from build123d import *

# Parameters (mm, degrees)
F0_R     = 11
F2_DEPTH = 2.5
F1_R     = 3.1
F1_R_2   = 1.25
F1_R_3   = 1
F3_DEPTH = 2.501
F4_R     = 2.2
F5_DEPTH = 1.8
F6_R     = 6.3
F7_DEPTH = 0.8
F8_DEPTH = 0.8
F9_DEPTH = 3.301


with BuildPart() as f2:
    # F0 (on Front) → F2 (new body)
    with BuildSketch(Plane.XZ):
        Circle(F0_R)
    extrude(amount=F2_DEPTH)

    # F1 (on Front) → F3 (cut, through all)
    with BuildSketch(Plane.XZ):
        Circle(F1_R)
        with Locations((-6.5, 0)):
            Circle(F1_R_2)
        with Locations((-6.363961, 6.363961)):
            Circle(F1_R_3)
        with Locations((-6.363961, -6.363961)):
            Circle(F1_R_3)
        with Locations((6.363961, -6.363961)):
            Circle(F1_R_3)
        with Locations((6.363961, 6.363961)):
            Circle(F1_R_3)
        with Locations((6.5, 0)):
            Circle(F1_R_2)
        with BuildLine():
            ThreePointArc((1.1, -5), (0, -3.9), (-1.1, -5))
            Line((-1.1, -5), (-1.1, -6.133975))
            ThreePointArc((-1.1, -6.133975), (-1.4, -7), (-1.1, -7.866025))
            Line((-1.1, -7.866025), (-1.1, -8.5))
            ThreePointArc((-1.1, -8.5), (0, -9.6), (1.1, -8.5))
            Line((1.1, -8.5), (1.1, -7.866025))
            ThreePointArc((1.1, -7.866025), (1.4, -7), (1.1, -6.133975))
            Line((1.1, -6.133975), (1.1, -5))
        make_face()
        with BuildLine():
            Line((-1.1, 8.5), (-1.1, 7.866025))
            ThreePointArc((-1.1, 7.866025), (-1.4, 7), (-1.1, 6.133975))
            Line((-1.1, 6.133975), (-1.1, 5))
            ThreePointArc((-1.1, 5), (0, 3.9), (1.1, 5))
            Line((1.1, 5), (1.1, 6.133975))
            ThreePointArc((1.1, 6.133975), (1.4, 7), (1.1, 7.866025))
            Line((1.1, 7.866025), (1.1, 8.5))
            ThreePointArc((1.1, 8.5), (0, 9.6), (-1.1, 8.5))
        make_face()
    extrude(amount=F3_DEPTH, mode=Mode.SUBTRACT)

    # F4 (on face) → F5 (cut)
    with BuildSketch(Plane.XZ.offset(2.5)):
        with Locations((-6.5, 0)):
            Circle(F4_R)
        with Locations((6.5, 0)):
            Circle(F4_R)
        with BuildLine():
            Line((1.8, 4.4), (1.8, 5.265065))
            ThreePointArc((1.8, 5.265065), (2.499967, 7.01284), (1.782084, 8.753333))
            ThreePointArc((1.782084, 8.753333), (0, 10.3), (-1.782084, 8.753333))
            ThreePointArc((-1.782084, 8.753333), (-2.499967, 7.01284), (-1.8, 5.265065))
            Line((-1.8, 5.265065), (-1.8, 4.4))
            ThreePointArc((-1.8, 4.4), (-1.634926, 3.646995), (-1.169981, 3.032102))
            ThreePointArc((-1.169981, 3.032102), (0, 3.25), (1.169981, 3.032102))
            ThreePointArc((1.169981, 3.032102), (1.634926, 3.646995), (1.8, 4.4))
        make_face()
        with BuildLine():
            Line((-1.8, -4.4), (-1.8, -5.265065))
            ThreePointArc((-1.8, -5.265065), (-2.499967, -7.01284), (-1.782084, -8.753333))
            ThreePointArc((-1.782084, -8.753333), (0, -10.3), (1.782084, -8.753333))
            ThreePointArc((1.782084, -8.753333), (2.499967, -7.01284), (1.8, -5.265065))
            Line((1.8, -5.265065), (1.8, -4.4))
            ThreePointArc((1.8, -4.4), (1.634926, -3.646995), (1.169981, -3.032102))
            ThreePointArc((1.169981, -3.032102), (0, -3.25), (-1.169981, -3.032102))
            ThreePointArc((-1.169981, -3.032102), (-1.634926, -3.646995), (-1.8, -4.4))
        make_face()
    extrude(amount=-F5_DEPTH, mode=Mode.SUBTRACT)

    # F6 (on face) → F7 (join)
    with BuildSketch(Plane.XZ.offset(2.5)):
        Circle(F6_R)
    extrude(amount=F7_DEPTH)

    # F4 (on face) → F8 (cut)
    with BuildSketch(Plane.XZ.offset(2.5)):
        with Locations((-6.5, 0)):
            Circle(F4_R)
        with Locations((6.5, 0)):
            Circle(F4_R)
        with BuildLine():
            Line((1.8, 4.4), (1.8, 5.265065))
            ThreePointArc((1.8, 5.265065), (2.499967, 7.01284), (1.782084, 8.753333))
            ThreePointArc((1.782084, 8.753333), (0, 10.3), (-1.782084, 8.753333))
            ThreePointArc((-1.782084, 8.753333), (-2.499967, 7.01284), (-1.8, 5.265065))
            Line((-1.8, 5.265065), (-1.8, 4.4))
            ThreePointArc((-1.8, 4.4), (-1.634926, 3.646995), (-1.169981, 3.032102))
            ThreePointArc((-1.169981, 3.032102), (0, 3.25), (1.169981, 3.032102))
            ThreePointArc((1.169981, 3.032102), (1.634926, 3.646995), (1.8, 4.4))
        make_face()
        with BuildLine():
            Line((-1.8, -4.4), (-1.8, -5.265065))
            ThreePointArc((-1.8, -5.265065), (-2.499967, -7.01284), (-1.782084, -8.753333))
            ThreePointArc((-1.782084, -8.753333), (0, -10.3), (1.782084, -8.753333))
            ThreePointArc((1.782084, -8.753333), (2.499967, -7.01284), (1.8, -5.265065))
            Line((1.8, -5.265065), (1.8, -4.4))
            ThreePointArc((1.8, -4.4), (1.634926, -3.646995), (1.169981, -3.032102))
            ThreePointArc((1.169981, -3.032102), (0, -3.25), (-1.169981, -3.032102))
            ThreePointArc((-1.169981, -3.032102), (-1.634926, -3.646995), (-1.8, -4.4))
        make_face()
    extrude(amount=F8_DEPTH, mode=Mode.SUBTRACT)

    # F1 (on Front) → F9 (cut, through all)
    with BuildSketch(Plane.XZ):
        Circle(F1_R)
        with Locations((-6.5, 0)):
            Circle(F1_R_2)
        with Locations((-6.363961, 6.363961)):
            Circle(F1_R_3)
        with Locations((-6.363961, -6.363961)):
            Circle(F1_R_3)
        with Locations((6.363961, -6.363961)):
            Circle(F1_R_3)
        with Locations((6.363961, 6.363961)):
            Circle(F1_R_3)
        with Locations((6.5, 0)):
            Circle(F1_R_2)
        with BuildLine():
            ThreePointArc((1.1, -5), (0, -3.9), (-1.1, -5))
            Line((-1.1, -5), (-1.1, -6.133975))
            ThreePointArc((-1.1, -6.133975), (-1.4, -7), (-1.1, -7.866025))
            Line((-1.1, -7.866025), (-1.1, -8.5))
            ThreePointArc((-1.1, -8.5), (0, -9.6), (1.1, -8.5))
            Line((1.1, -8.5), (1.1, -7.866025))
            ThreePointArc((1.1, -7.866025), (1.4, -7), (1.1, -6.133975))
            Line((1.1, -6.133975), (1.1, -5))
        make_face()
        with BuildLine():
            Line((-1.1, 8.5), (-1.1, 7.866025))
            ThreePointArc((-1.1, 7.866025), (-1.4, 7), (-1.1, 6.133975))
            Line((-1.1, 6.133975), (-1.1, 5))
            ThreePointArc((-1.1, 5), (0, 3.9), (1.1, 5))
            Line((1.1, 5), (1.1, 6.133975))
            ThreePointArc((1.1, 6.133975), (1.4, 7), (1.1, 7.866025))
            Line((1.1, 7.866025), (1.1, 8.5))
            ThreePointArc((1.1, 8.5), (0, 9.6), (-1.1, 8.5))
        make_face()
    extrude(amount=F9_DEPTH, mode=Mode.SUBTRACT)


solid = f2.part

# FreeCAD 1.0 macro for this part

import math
import FreeCAD as App
import Part
import Sketcher

V = App.Vector

doc = App.newDocument("Part")
body = doc.addObject("PartDesign::Body", "Body")

sketch1 = body.newObject("Sketcher::SketchObject", "Sketch")
sketch1.AttachmentSupport = (doc.getObject("XZ_Plane"), [""])
sketch1.MapMode = "FlatFace"
sketch1.addGeometry(Part.Circle(V(0, 0, 0), V(0, 0, 1), 11), False)
sketch1.addConstraint(Sketcher.Constraint("Coincident", 0, 3, -1, 1))
sketch1.addConstraint(Sketcher.Constraint("Diameter", 0, 22.0))
pad1 = body.newObject("PartDesign::Pad", "Pad")
pad1.Profile = sketch1
pad1.Length = 2.5

sketch2 = body.newObject("Sketcher::SketchObject", "Sketch001")
sketch2.AttachmentSupport = (doc.getObject("XZ_Plane"), [""])
sketch2.MapMode = "FlatFace"
sketch2.addGeometry(Part.Circle(V(0, 0, 0), V(0, 0, 1), 3.1), False)
sketch2.addGeometry(Part.Circle(V(-6.5, 0, 0), V(0, 0, 1), 1.2), False)
sketch2.addGeometry(Part.Circle(V(-6.4, 6.4, 0), V(0, 0, 1), 1), False)
sketch2.addGeometry(Part.Circle(V(-6.4, -6.4, 0), V(0, 0, 1), 1), False)
sketch2.addGeometry(Part.Circle(V(6.4, -6.4, 0), V(0, 0, 1), 1), False)
sketch2.addGeometry(Part.Circle(V(6.4, 6.4, 0), V(0, 0, 1), 1), False)
sketch2.addGeometry(Part.Circle(V(6.5, 0, 0), V(0, 0, 1), 1.2), False)
sketch2.addGeometry(Part.ArcOfCircle(Part.Circle(V(0, -5, 0), V(0, 0, 1), 1.1), math.radians(0), math.radians(180)), False)
sketch2.addGeometry(Part.LineSegment(V(-1.1, -5, 0), V(-1.1, -6.1, 0)), False)
sketch2.addGeometry(Part.ArcOfCircle(Part.Circle(V(0, -7, 0), V(0, 0, 1), 1.4), math.radians(142), math.radians(218)), False)
sketch2.addGeometry(Part.LineSegment(V(-1.1, -7.9, 0), V(-1.1, -8.5, 0)), False)
sketch2.addGeometry(Part.ArcOfCircle(Part.Circle(V(0, -8.5, 0), V(0, 0, 1), 1.1), math.radians(180), math.radians(360)), False)
sketch2.addGeometry(Part.LineSegment(V(1.1, -8.5, 0), V(1.1, -7.9, 0)), False)
sketch2.addGeometry(Part.ArcOfCircle(Part.Circle(V(0, -7, 0), V(0, 0, 1), 1.4), math.radians(-38), math.radians(38)), False)
sketch2.addGeometry(Part.LineSegment(V(1.1, -6.1, 0), V(1.1, -5, 0)), False)
sketch2.addGeometry(Part.LineSegment(V(-1.1, 8.5, 0), V(-1.1, 7.9, 0)), False)
sketch2.addGeometry(Part.ArcOfCircle(Part.Circle(V(0, 7, 0), V(0, 0, 1), 1.4), math.radians(142), math.radians(218)), False)
sketch2.addGeometry(Part.LineSegment(V(-1.1, 6.1, 0), V(-1.1, 5, 0)), False)
sketch2.addGeometry(Part.ArcOfCircle(Part.Circle(V(0, 5, 0), V(0, 0, 1), 1.1), math.radians(180), math.radians(360)), False)
sketch2.addGeometry(Part.LineSegment(V(1.1, 5, 0), V(1.1, 6.1, 0)), False)
sketch2.addGeometry(Part.ArcOfCircle(Part.Circle(V(0, 7, 0), V(0, 0, 1), 1.4), math.radians(-38), math.radians(38)), False)
sketch2.addGeometry(Part.LineSegment(V(1.1, 7.9, 0), V(1.1, 8.5, 0)), False)
sketch2.addGeometry(Part.ArcOfCircle(Part.Circle(V(0, 8.5, 0), V(0, 0, 1), 1.1), math.radians(0), math.radians(180)), False)
sketch2.addConstraint(Sketcher.Constraint("Tangent", 7, 2, 8, 1))
sketch2.addConstraint(Sketcher.Constraint("Coincident", 8, 2, 9, 1))
sketch2.addConstraint(Sketcher.Constraint("Coincident", 9, 2, 10, 1))
sketch2.addConstraint(Sketcher.Constraint("Tangent", 10, 2, 11, 1))
sketch2.addConstraint(Sketcher.Constraint("Tangent", 11, 2, 12, 1))
sketch2.addConstraint(Sketcher.Constraint("Coincident", 12, 2, 13, 1))
sketch2.addConstraint(Sketcher.Constraint("Coincident", 13, 2, 14, 1))
sketch2.addConstraint(Sketcher.Constraint("Tangent", 14, 2, 7, 1))
sketch2.addConstraint(Sketcher.Constraint("Coincident", 15, 2, 16, 1))
sketch2.addConstraint(Sketcher.Constraint("Coincident", 16, 2, 17, 1))
sketch2.addConstraint(Sketcher.Constraint("Tangent", 17, 2, 18, 1))
sketch2.addConstraint(Sketcher.Constraint("Tangent", 18, 2, 19, 1))
sketch2.addConstraint(Sketcher.Constraint("Coincident", 19, 2, 20, 1))
sketch2.addConstraint(Sketcher.Constraint("Coincident", 20, 2, 21, 1))
sketch2.addConstraint(Sketcher.Constraint("Tangent", 21, 2, 22, 1))
sketch2.addConstraint(Sketcher.Constraint("Tangent", 22, 2, 15, 1))
sketch2.addConstraint(Sketcher.Constraint("Vertical", 8))
sketch2.addConstraint(Sketcher.Constraint("Vertical", 10))
sketch2.addConstraint(Sketcher.Constraint("Vertical", 12))
sketch2.addConstraint(Sketcher.Constraint("Vertical", 14))
sketch2.addConstraint(Sketcher.Constraint("Vertical", 15))
sketch2.addConstraint(Sketcher.Constraint("Vertical", 17))
sketch2.addConstraint(Sketcher.Constraint("Vertical", 19))
sketch2.addConstraint(Sketcher.Constraint("Vertical", 21))
sketch2.addConstraint(Sketcher.Constraint("Coincident", 0, 3, -1, 1))
sketch2.addConstraint(Sketcher.Constraint("Coincident", 13, 3, 9, 3))
sketch2.addConstraint(Sketcher.Constraint("Coincident", 20, 3, 16, 3))
sketch2.addConstraint(Sketcher.Constraint("Equal", 2, 3))
sketch2.addConstraint(Sketcher.Constraint("Equal", 3, 4))
sketch2.addConstraint(Sketcher.Constraint("Equal", 4, 5))
sketch2.addConstraint(Sketcher.Constraint("Equal", 1, 6))
sketch2.addConstraint(Sketcher.Constraint("Equal", 7, 11))
sketch2.addConstraint(Sketcher.Constraint("Equal", 9, 13))
sketch2.addConstraint(Sketcher.Constraint("Equal", 13, 16))
sketch2.addConstraint(Sketcher.Constraint("Equal", 11, 18))
sketch2.addConstraint(Sketcher.Constraint("Equal", 16, 20))
sketch2.addConstraint(Sketcher.Constraint("Equal", 18, 22))
sketch2.addConstraint(Sketcher.Constraint("Symmetric", 2, 3, 4, 3, -1, 1))
sketch2.addConstraint(Sketcher.Constraint("Symmetric", 3, 3, 5, 3, -1, 1))
sketch2.addConstraint(Sketcher.Constraint("Symmetric", 1, 3, 6, 3, -1, 1))
sketch2.addConstraint(Sketcher.Constraint("Symmetric", 9, 3, 16, 3, -1, 1))
sketch2.addConstraint(Sketcher.Constraint("Symmetric", 7, 3, 18, 3, -1, 1))
sketch2.addConstraint(Sketcher.Constraint("Symmetric", 11, 3, 22, 3, -1, 1))
sketch2.addConstraint(Sketcher.Constraint("Symmetric", 3, 3, 4, 3, -2))
sketch2.addConstraint(Sketcher.Constraint("Symmetric", 9, 2, 12, 2, -2))
sketch2.addConstraint(Sketcher.Constraint("PointOnObject", 1, 3, -1))
sketch2.addConstraint(Sketcher.Constraint("PointOnObject", 7, 3, -2))
sketch2.addConstraint(Sketcher.Constraint("Diameter", 2, 2.0))
sketch2.addConstraint(Sketcher.Constraint("Diameter", 0, 6.2))
sketch2.addConstraint(Sketcher.Constraint("Diameter", 1, 2.5))
sketch2.addConstraint(Sketcher.Constraint("Radius", 7, 1.1))
sketch2.addConstraint(Sketcher.Constraint("Radius", 9, 1.399999))
sketch2.addConstraint(Sketcher.Constraint("DistanceY", 7, 3, -1, 1, 5.0))
sketch2.addConstraint(Sketcher.Constraint("DistanceY", 9, 3, -1, 1, 7.0))
sketch2.addConstraint(Sketcher.Constraint("DistanceX", 1, 3, 6, 3, 13.0))
sketch2.addConstraint(Sketcher.Constraint("DistanceY", 11, 3, -1, 1, 8.5))
sketch2.addConstraint(Sketcher.Constraint("DistanceX", 2, 3, -1, 1, 6.363961))
sketch2.addConstraint(Sketcher.Constraint("DistanceY", -1, 1, 2, 3, 6.363961))
pocket1 = body.newObject("PartDesign::Pocket", "Pocket")
pocket1.Profile = sketch2
pocket1.Type = "ThroughAll"
pocket1.Reversed = True

sketch3 = body.newObject("Sketcher::SketchObject", "Sketch002")
sketch3.AttachmentSupport = (doc.getObject("XZ_Plane"), [""])
sketch3.MapMode = "FlatFace"
sketch3.AttachmentOffset = App.Placement(V(0, 0, 2.5), App.Rotation())
sketch3.addGeometry(Part.Circle(V(-6.5, 0, 0), V(0, 0, 1), 2.2), False)
sketch3.addGeometry(Part.Circle(V(6.5, 0, 0), V(0, 0, 1), 2.2), False)
sketch3.addGeometry(Part.LineSegment(V(1.8, 4.4, 0), V(1.8, 5.3, 0)), False)
sketch3.addGeometry(Part.ArcOfCircle(Part.Circle(V(0, 7, 0), V(0, 0, 1), 2.5), math.radians(-44), math.radians(45)), False)
sketch3.addGeometry(Part.ArcOfCircle(Part.Circle(V(0, 8.5, 0), V(0, 0, 1), 1.8), math.radians(8), math.radians(172)), False)
sketch3.addGeometry(Part.ArcOfCircle(Part.Circle(V(0, 7, 0), V(0, 0, 1), 2.5), math.radians(135), math.radians(224)), False)
sketch3.addGeometry(Part.LineSegment(V(-1.8, 5.3, 0), V(-1.8, 4.4, 0)), False)
sketch3.addGeometry(Part.ArcOfCircle(Part.Circle(V(0, 4.4, 0), V(0, 0, 1), 1.8), math.radians(-180), math.radians(-131)), False)
sketch3.addGeometry(Part.ArcOfCircle(Part.Circle(V(0, 0, 0), V(0, 0, 1), 3.2), math.radians(69), math.radians(111)), False)
sketch3.addGeometry(Part.ArcOfCircle(Part.Circle(V(0, 4.4, 0), V(0, 0, 1), 1.8), math.radians(-49), math.radians(0)), False)
sketch3.addGeometry(Part.LineSegment(V(-1.8, -4.4, 0), V(-1.8, -5.3, 0)), False)
sketch3.addGeometry(Part.ArcOfCircle(Part.Circle(V(0, -7, 0), V(0, 0, 1), 2.5), math.radians(136), math.radians(225)), False)
sketch3.addGeometry(Part.ArcOfCircle(Part.Circle(V(0, -8.5, 0), V(0, 0, 1), 1.8), math.radians(-172), math.radians(-8)), False)
sketch3.addGeometry(Part.ArcOfCircle(Part.Circle(V(0, -7, 0), V(0, 0, 1), 2.5), math.radians(-45), math.radians(44)), False)
sketch3.addGeometry(Part.LineSegment(V(1.8, -5.3, 0), V(1.8, -4.4, 0)), False)
sketch3.addGeometry(Part.ArcOfCircle(Part.Circle(V(0, -4.4, 0), V(0, 0, 1), 1.8), math.radians(0), math.radians(49)), False)
sketch3.addGeometry(Part.ArcOfCircle(Part.Circle(V(0, 0, 0), V(0, 0, 1), 3.2), math.radians(-111), math.radians(-69)), False)
sketch3.addGeometry(Part.ArcOfCircle(Part.Circle(V(0, -4.4, 0), V(0, 0, 1), 1.8), math.radians(131), math.radians(180)), False)
sketch3.addConstraint(Sketcher.Constraint("Coincident", 2, 2, 3, 1))
sketch3.addConstraint(Sketcher.Constraint("Coincident", 3, 2, 4, 1))
sketch3.addConstraint(Sketcher.Constraint("Coincident", 4, 2, 5, 1))
sketch3.addConstraint(Sketcher.Constraint("Coincident", 5, 2, 6, 1))
sketch3.addConstraint(Sketcher.Constraint("Tangent", 6, 2, 7, 1))
sketch3.addConstraint(Sketcher.Constraint("Coincident", 7, 2, 8, 2))
sketch3.addConstraint(Sketcher.Constraint("Coincident", 8, 1, 9, 1))
sketch3.addConstraint(Sketcher.Constraint("Tangent", 9, 2, 2, 1))
sketch3.addConstraint(Sketcher.Constraint("Coincident", 10, 2, 11, 1))
sketch3.addConstraint(Sketcher.Constraint("Coincident", 11, 2, 12, 1))
sketch3.addConstraint(Sketcher.Constraint("Coincident", 12, 2, 13, 1))
sketch3.addConstraint(Sketcher.Constraint("Coincident", 13, 2, 14, 1))
sketch3.addConstraint(Sketcher.Constraint("Tangent", 14, 2, 15, 1))
sketch3.addConstraint(Sketcher.Constraint("Coincident", 15, 2, 16, 2))
sketch3.addConstraint(Sketcher.Constraint("Coincident", 16, 1, 17, 1))
sketch3.addConstraint(Sketcher.Constraint("Tangent", 17, 2, 10, 1))
sketch3.addConstraint(Sketcher.Constraint("Vertical", 2))
sketch3.addConstraint(Sketcher.Constraint("Vertical", 6))
sketch3.addConstraint(Sketcher.Constraint("Vertical", 10))
sketch3.addConstraint(Sketcher.Constraint("Vertical", 14))
sketch3.addConstraint(Sketcher.Constraint("Coincident", 8, 3, -1, 1))
sketch3.addConstraint(Sketcher.Constraint("Coincident", 16, 3, -1, 1))
sketch3.addConstraint(Sketcher.Constraint("Coincident", 5, 3, 3, 3))
sketch3.addConstraint(Sketcher.Constraint("Coincident", 9, 3, 7, 3))
sketch3.addConstraint(Sketcher.Constraint("Coincident", 13, 3, 11, 3))
sketch3.addConstraint(Sketcher.Constraint("Coincident", 17, 3, 15, 3))
sketch3.addConstraint(Sketcher.Constraint("Equal", 0, 1))
sketch3.addConstraint(Sketcher.Constraint("Equal", 3, 5))
sketch3.addConstraint(Sketcher.Constraint("Equal", 4, 7))
sketch3.addConstraint(Sketcher.Constraint("Equal", 7, 9))
sketch3.addConstraint(Sketcher.Constraint("Equal", 5, 11))
sketch3.addConstraint(Sketcher.Constraint("Equal", 9, 12))
sketch3.addConstraint(Sketcher.Constraint("Equal", 11, 13))
sketch3.addConstraint(Sketcher.Constraint("Equal", 12, 15))
sketch3.addConstraint(Sketcher.Constraint("Equal", 8, 16))
sketch3.addConstraint(Sketcher.Constraint("Equal", 15, 17))
sketch3.addConstraint(Sketcher.Constraint("Symmetric", 0, 3, 1, 3, -1, 1))
sketch3.addConstraint(Sketcher.Constraint("Symmetric", 3, 3, 11, 3, -1, 1))
sketch3.addConstraint(Sketcher.Constraint("Symmetric", 4, 3, 12, 3, -1, 1))
sketch3.addConstraint(Sketcher.Constraint("Symmetric", 7, 3, 15, 3, -1, 1))
sketch3.addConstraint(Sketcher.Constraint("Symmetric", 3, 2, 4, 2, -2))
sketch3.addConstraint(Sketcher.Constraint("PointOnObject", 0, 3, -1))
sketch3.addConstraint(Sketcher.Constraint("PointOnObject", 7, 3, -2))
sketch3.addConstraint(Sketcher.Constraint("Diameter", 0, 4.4))
sketch3.addConstraint(Sketcher.Constraint("Radius", 3, 2.5))
sketch3.addConstraint(Sketcher.Constraint("Radius", 4, 1.8))
sketch3.addConstraint(Sketcher.Constraint("DistanceY", -1, 1, 3, 3, 7.0))
sketch3.addConstraint(Sketcher.Constraint("DistanceX", 0, 3, 1, 3, 13.0))
sketch3.addConstraint(Sketcher.Constraint("DistanceY", -1, 1, 4, 3, 8.5))
sketch3.addConstraint(Sketcher.Constraint("DistanceY", -1, 1, 7, 3, 4.400001))
sketch3.addConstraint(Sketcher.Constraint("Radius", 8, 3.249996))
pocket2 = body.newObject("PartDesign::Pocket", "Pocket001")
pocket2.Profile = sketch3
pocket2.Length = 1.8

sketch4 = body.newObject("Sketcher::SketchObject", "Sketch003")
sketch4.AttachmentSupport = (doc.getObject("XZ_Plane"), [""])
sketch4.MapMode = "FlatFace"
sketch4.AttachmentOffset = App.Placement(V(0, 0, 2.5), App.Rotation())
sketch4.addGeometry(Part.Circle(V(0, 0, 0), V(0, 0, 1), 6), False)
sketch4.addConstraint(Sketcher.Constraint("Coincident", 0, 3, -1, 1))
sketch4.addConstraint(Sketcher.Constraint("Diameter", 0, 12.6))
pad2 = body.newObject("PartDesign::Pad", "Pad001")
pad2.Profile = sketch4
pad2.Length = 0.8

sketch5 = body.newObject("Sketcher::SketchObject", "Sketch004")
sketch5.AttachmentSupport = (doc.getObject("XZ_Plane"), [""])
sketch5.MapMode = "FlatFace"
sketch5.AttachmentOffset = App.Placement(V(0, 0, 2.5), App.Rotation())
sketch5.addGeometry(Part.Circle(V(-6.5, 0, 0), V(0, 0, 1), 2.2), False)
sketch5.addGeometry(Part.Circle(V(6.5, 0, 0), V(0, 0, 1), 2.2), False)
sketch5.addGeometry(Part.LineSegment(V(1.8, 4.4, 0), V(1.8, 5.3, 0)), False)
sketch5.addGeometry(Part.ArcOfCircle(Part.Circle(V(0, 7, 0), V(0, 0, 1), 2.5), math.radians(-44), math.radians(45)), False)
sketch5.addGeometry(Part.ArcOfCircle(Part.Circle(V(0, 8.5, 0), V(0, 0, 1), 1.8), math.radians(8), math.radians(172)), False)
sketch5.addGeometry(Part.ArcOfCircle(Part.Circle(V(0, 7, 0), V(0, 0, 1), 2.5), math.radians(135), math.radians(224)), False)
sketch5.addGeometry(Part.LineSegment(V(-1.8, 5.3, 0), V(-1.8, 4.4, 0)), False)
sketch5.addGeometry(Part.ArcOfCircle(Part.Circle(V(0, 4.4, 0), V(0, 0, 1), 1.8), math.radians(-180), math.radians(-131)), False)
sketch5.addGeometry(Part.ArcOfCircle(Part.Circle(V(0, 0, 0), V(0, 0, 1), 3.2), math.radians(69), math.radians(111)), False)
sketch5.addGeometry(Part.ArcOfCircle(Part.Circle(V(0, 4.4, 0), V(0, 0, 1), 1.8), math.radians(-49), math.radians(0)), False)
sketch5.addGeometry(Part.LineSegment(V(-1.8, -4.4, 0), V(-1.8, -5.3, 0)), False)
sketch5.addGeometry(Part.ArcOfCircle(Part.Circle(V(0, -7, 0), V(0, 0, 1), 2.5), math.radians(136), math.radians(225)), False)
sketch5.addGeometry(Part.ArcOfCircle(Part.Circle(V(0, -8.5, 0), V(0, 0, 1), 1.8), math.radians(-172), math.radians(-8)), False)
sketch5.addGeometry(Part.ArcOfCircle(Part.Circle(V(0, -7, 0), V(0, 0, 1), 2.5), math.radians(-45), math.radians(44)), False)
sketch5.addGeometry(Part.LineSegment(V(1.8, -5.3, 0), V(1.8, -4.4, 0)), False)
sketch5.addGeometry(Part.ArcOfCircle(Part.Circle(V(0, -4.4, 0), V(0, 0, 1), 1.8), math.radians(0), math.radians(49)), False)
sketch5.addGeometry(Part.ArcOfCircle(Part.Circle(V(0, 0, 0), V(0, 0, 1), 3.2), math.radians(-111), math.radians(-69)), False)
sketch5.addGeometry(Part.ArcOfCircle(Part.Circle(V(0, -4.4, 0), V(0, 0, 1), 1.8), math.radians(131), math.radians(180)), False)
sketch5.addConstraint(Sketcher.Constraint("Coincident", 2, 2, 3, 1))
sketch5.addConstraint(Sketcher.Constraint("Coincident", 3, 2, 4, 1))
sketch5.addConstraint(Sketcher.Constraint("Coincident", 4, 2, 5, 1))
sketch5.addConstraint(Sketcher.Constraint("Coincident", 5, 2, 6, 1))
sketch5.addConstraint(Sketcher.Constraint("Tangent", 6, 2, 7, 1))
sketch5.addConstraint(Sketcher.Constraint("Coincident", 7, 2, 8, 2))
sketch5.addConstraint(Sketcher.Constraint("Coincident", 8, 1, 9, 1))
sketch5.addConstraint(Sketcher.Constraint("Tangent", 9, 2, 2, 1))
sketch5.addConstraint(Sketcher.Constraint("Coincident", 10, 2, 11, 1))
sketch5.addConstraint(Sketcher.Constraint("Coincident", 11, 2, 12, 1))
sketch5.addConstraint(Sketcher.Constraint("Coincident", 12, 2, 13, 1))
sketch5.addConstraint(Sketcher.Constraint("Coincident", 13, 2, 14, 1))
sketch5.addConstraint(Sketcher.Constraint("Tangent", 14, 2, 15, 1))
sketch5.addConstraint(Sketcher.Constraint("Coincident", 15, 2, 16, 2))
sketch5.addConstraint(Sketcher.Constraint("Coincident", 16, 1, 17, 1))
sketch5.addConstraint(Sketcher.Constraint("Tangent", 17, 2, 10, 1))
sketch5.addConstraint(Sketcher.Constraint("Vertical", 2))
sketch5.addConstraint(Sketcher.Constraint("Vertical", 6))
sketch5.addConstraint(Sketcher.Constraint("Vertical", 10))
sketch5.addConstraint(Sketcher.Constraint("Vertical", 14))
sketch5.addConstraint(Sketcher.Constraint("Coincident", 8, 3, -1, 1))
sketch5.addConstraint(Sketcher.Constraint("Coincident", 16, 3, -1, 1))
sketch5.addConstraint(Sketcher.Constraint("Coincident", 5, 3, 3, 3))
sketch5.addConstraint(Sketcher.Constraint("Coincident", 9, 3, 7, 3))
sketch5.addConstraint(Sketcher.Constraint("Coincident", 13, 3, 11, 3))
sketch5.addConstraint(Sketcher.Constraint("Coincident", 17, 3, 15, 3))
sketch5.addConstraint(Sketcher.Constraint("Equal", 0, 1))
sketch5.addConstraint(Sketcher.Constraint("Equal", 3, 5))
sketch5.addConstraint(Sketcher.Constraint("Equal", 4, 7))
sketch5.addConstraint(Sketcher.Constraint("Equal", 7, 9))
sketch5.addConstraint(Sketcher.Constraint("Equal", 5, 11))
sketch5.addConstraint(Sketcher.Constraint("Equal", 9, 12))
sketch5.addConstraint(Sketcher.Constraint("Equal", 11, 13))
sketch5.addConstraint(Sketcher.Constraint("Equal", 12, 15))
sketch5.addConstraint(Sketcher.Constraint("Equal", 8, 16))
sketch5.addConstraint(Sketcher.Constraint("Equal", 15, 17))
sketch5.addConstraint(Sketcher.Constraint("Symmetric", 0, 3, 1, 3, -1, 1))
sketch5.addConstraint(Sketcher.Constraint("Symmetric", 3, 3, 11, 3, -1, 1))
sketch5.addConstraint(Sketcher.Constraint("Symmetric", 4, 3, 12, 3, -1, 1))
sketch5.addConstraint(Sketcher.Constraint("Symmetric", 7, 3, 15, 3, -1, 1))
sketch5.addConstraint(Sketcher.Constraint("Symmetric", 3, 2, 4, 2, -2))
sketch5.addConstraint(Sketcher.Constraint("PointOnObject", 0, 3, -1))
sketch5.addConstraint(Sketcher.Constraint("PointOnObject", 7, 3, -2))
sketch5.addConstraint(Sketcher.Constraint("Diameter", 0, 4.4))
sketch5.addConstraint(Sketcher.Constraint("Radius", 3, 2.5))
sketch5.addConstraint(Sketcher.Constraint("Radius", 4, 1.8))
sketch5.addConstraint(Sketcher.Constraint("DistanceY", -1, 1, 3, 3, 7.0))
sketch5.addConstraint(Sketcher.Constraint("DistanceX", 0, 3, 1, 3, 13.0))
sketch5.addConstraint(Sketcher.Constraint("DistanceY", -1, 1, 4, 3, 8.5))
sketch5.addConstraint(Sketcher.Constraint("DistanceY", -1, 1, 7, 3, 4.400001))
sketch5.addConstraint(Sketcher.Constraint("Radius", 8, 3.249996))
pocket3 = body.newObject("PartDesign::Pocket", "Pocket002")
pocket3.Profile = sketch5
pocket3.Length = 0.8
pocket3.Reversed = True

sketch6 = body.newObject("Sketcher::SketchObject", "Sketch005")
sketch6.AttachmentSupport = (doc.getObject("XZ_Plane"), [""])
sketch6.MapMode = "FlatFace"
sketch6.addGeometry(Part.Circle(V(0, 0, 0), V(0, 0, 1), 3.1), False)
sketch6.addGeometry(Part.Circle(V(-6.5, 0, 0), V(0, 0, 1), 1.2), False)
sketch6.addGeometry(Part.Circle(V(-6.4, 6.4, 0), V(0, 0, 1), 1), False)
sketch6.addGeometry(Part.Circle(V(-6.4, -6.4, 0), V(0, 0, 1), 1), False)
sketch6.addGeometry(Part.Circle(V(6.4, -6.4, 0), V(0, 0, 1), 1), False)
sketch6.addGeometry(Part.Circle(V(6.4, 6.4, 0), V(0, 0, 1), 1), False)
sketch6.addGeometry(Part.Circle(V(6.5, 0, 0), V(0, 0, 1), 1.2), False)
sketch6.addGeometry(Part.ArcOfCircle(Part.Circle(V(0, -5, 0), V(0, 0, 1), 1.1), math.radians(0), math.radians(180)), False)
sketch6.addGeometry(Part.LineSegment(V(-1.1, -5, 0), V(-1.1, -6.1, 0)), False)
sketch6.addGeometry(Part.ArcOfCircle(Part.Circle(V(0, -7, 0), V(0, 0, 1), 1.4), math.radians(142), math.radians(218)), False)
sketch6.addGeometry(Part.LineSegment(V(-1.1, -7.9, 0), V(-1.1, -8.5, 0)), False)
sketch6.addGeometry(Part.ArcOfCircle(Part.Circle(V(0, -8.5, 0), V(0, 0, 1), 1.1), math.radians(180), math.radians(360)), False)
sketch6.addGeometry(Part.LineSegment(V(1.1, -8.5, 0), V(1.1, -7.9, 0)), False)
sketch6.addGeometry(Part.ArcOfCircle(Part.Circle(V(0, -7, 0), V(0, 0, 1), 1.4), math.radians(-38), math.radians(38)), False)
sketch6.addGeometry(Part.LineSegment(V(1.1, -6.1, 0), V(1.1, -5, 0)), False)
sketch6.addGeometry(Part.LineSegment(V(-1.1, 8.5, 0), V(-1.1, 7.9, 0)), False)
sketch6.addGeometry(Part.ArcOfCircle(Part.Circle(V(0, 7, 0), V(0, 0, 1), 1.4), math.radians(142), math.radians(218)), False)
sketch6.addGeometry(Part.LineSegment(V(-1.1, 6.1, 0), V(-1.1, 5, 0)), False)
sketch6.addGeometry(Part.ArcOfCircle(Part.Circle(V(0, 5, 0), V(0, 0, 1), 1.1), math.radians(180), math.radians(360)), False)
sketch6.addGeometry(Part.LineSegment(V(1.1, 5, 0), V(1.1, 6.1, 0)), False)
sketch6.addGeometry(Part.ArcOfCircle(Part.Circle(V(0, 7, 0), V(0, 0, 1), 1.4), math.radians(-38), math.radians(38)), False)
sketch6.addGeometry(Part.LineSegment(V(1.1, 7.9, 0), V(1.1, 8.5, 0)), False)
sketch6.addGeometry(Part.ArcOfCircle(Part.Circle(V(0, 8.5, 0), V(0, 0, 1), 1.1), math.radians(0), math.radians(180)), False)
sketch6.addConstraint(Sketcher.Constraint("Tangent", 7, 2, 8, 1))
sketch6.addConstraint(Sketcher.Constraint("Coincident", 8, 2, 9, 1))
sketch6.addConstraint(Sketcher.Constraint("Coincident", 9, 2, 10, 1))
sketch6.addConstraint(Sketcher.Constraint("Tangent", 10, 2, 11, 1))
sketch6.addConstraint(Sketcher.Constraint("Tangent", 11, 2, 12, 1))
sketch6.addConstraint(Sketcher.Constraint("Coincident", 12, 2, 13, 1))
sketch6.addConstraint(Sketcher.Constraint("Coincident", 13, 2, 14, 1))
sketch6.addConstraint(Sketcher.Constraint("Tangent", 14, 2, 7, 1))
sketch6.addConstraint(Sketcher.Constraint("Coincident", 15, 2, 16, 1))
sketch6.addConstraint(Sketcher.Constraint("Coincident", 16, 2, 17, 1))
sketch6.addConstraint(Sketcher.Constraint("Tangent", 17, 2, 18, 1))
sketch6.addConstraint(Sketcher.Constraint("Tangent", 18, 2, 19, 1))
sketch6.addConstraint(Sketcher.Constraint("Coincident", 19, 2, 20, 1))
sketch6.addConstraint(Sketcher.Constraint("Coincident", 20, 2, 21, 1))
sketch6.addConstraint(Sketcher.Constraint("Tangent", 21, 2, 22, 1))
sketch6.addConstraint(Sketcher.Constraint("Tangent", 22, 2, 15, 1))
sketch6.addConstraint(Sketcher.Constraint("Vertical", 8))
sketch6.addConstraint(Sketcher.Constraint("Vertical", 10))
sketch6.addConstraint(Sketcher.Constraint("Vertical", 12))
sketch6.addConstraint(Sketcher.Constraint("Vertical", 14))
sketch6.addConstraint(Sketcher.Constraint("Vertical", 15))
sketch6.addConstraint(Sketcher.Constraint("Vertical", 17))
sketch6.addConstraint(Sketcher.Constraint("Vertical", 19))
sketch6.addConstraint(Sketcher.Constraint("Vertical", 21))
sketch6.addConstraint(Sketcher.Constraint("Coincident", 0, 3, -1, 1))
sketch6.addConstraint(Sketcher.Constraint("Coincident", 13, 3, 9, 3))
sketch6.addConstraint(Sketcher.Constraint("Coincident", 20, 3, 16, 3))
sketch6.addConstraint(Sketcher.Constraint("Equal", 2, 3))
sketch6.addConstraint(Sketcher.Constraint("Equal", 3, 4))
sketch6.addConstraint(Sketcher.Constraint("Equal", 4, 5))
sketch6.addConstraint(Sketcher.Constraint("Equal", 1, 6))
sketch6.addConstraint(Sketcher.Constraint("Equal", 7, 11))
sketch6.addConstraint(Sketcher.Constraint("Equal", 9, 13))
sketch6.addConstraint(Sketcher.Constraint("Equal", 13, 16))
sketch6.addConstraint(Sketcher.Constraint("Equal", 11, 18))
sketch6.addConstraint(Sketcher.Constraint("Equal", 16, 20))
sketch6.addConstraint(Sketcher.Constraint("Equal", 18, 22))
sketch6.addConstraint(Sketcher.Constraint("Symmetric", 2, 3, 4, 3, -1, 1))
sketch6.addConstraint(Sketcher.Constraint("Symmetric", 3, 3, 5, 3, -1, 1))
sketch6.addConstraint(Sketcher.Constraint("Symmetric", 1, 3, 6, 3, -1, 1))
sketch6.addConstraint(Sketcher.Constraint("Symmetric", 9, 3, 16, 3, -1, 1))
sketch6.addConstraint(Sketcher.Constraint("Symmetric", 7, 3, 18, 3, -1, 1))
sketch6.addConstraint(Sketcher.Constraint("Symmetric", 11, 3, 22, 3, -1, 1))
sketch6.addConstraint(Sketcher.Constraint("Symmetric", 3, 3, 4, 3, -2))
sketch6.addConstraint(Sketcher.Constraint("Symmetric", 9, 2, 12, 2, -2))
sketch6.addConstraint(Sketcher.Constraint("PointOnObject", 1, 3, -1))
sketch6.addConstraint(Sketcher.Constraint("PointOnObject", 7, 3, -2))
sketch6.addConstraint(Sketcher.Constraint("Diameter", 2, 2.0))
sketch6.addConstraint(Sketcher.Constraint("Diameter", 0, 6.2))
sketch6.addConstraint(Sketcher.Constraint("Diameter", 1, 2.5))
sketch6.addConstraint(Sketcher.Constraint("Radius", 7, 1.1))
sketch6.addConstraint(Sketcher.Constraint("Radius", 9, 1.399999))
sketch6.addConstraint(Sketcher.Constraint("DistanceY", 7, 3, -1, 1, 5.0))
sketch6.addConstraint(Sketcher.Constraint("DistanceY", 9, 3, -1, 1, 7.0))
sketch6.addConstraint(Sketcher.Constraint("DistanceX", 1, 3, 6, 3, 13.0))
sketch6.addConstraint(Sketcher.Constraint("DistanceY", 11, 3, -1, 1, 8.5))
sketch6.addConstraint(Sketcher.Constraint("DistanceX", 2, 3, -1, 1, 6.363961))
sketch6.addConstraint(Sketcher.Constraint("DistanceY", -1, 1, 2, 3, 6.363961))
pocket4 = body.newObject("PartDesign::Pocket", "Pocket003")
pocket4.Profile = sketch6
pocket4.Type = "ThroughAll"
pocket4.Reversed = True

doc.recompute()
